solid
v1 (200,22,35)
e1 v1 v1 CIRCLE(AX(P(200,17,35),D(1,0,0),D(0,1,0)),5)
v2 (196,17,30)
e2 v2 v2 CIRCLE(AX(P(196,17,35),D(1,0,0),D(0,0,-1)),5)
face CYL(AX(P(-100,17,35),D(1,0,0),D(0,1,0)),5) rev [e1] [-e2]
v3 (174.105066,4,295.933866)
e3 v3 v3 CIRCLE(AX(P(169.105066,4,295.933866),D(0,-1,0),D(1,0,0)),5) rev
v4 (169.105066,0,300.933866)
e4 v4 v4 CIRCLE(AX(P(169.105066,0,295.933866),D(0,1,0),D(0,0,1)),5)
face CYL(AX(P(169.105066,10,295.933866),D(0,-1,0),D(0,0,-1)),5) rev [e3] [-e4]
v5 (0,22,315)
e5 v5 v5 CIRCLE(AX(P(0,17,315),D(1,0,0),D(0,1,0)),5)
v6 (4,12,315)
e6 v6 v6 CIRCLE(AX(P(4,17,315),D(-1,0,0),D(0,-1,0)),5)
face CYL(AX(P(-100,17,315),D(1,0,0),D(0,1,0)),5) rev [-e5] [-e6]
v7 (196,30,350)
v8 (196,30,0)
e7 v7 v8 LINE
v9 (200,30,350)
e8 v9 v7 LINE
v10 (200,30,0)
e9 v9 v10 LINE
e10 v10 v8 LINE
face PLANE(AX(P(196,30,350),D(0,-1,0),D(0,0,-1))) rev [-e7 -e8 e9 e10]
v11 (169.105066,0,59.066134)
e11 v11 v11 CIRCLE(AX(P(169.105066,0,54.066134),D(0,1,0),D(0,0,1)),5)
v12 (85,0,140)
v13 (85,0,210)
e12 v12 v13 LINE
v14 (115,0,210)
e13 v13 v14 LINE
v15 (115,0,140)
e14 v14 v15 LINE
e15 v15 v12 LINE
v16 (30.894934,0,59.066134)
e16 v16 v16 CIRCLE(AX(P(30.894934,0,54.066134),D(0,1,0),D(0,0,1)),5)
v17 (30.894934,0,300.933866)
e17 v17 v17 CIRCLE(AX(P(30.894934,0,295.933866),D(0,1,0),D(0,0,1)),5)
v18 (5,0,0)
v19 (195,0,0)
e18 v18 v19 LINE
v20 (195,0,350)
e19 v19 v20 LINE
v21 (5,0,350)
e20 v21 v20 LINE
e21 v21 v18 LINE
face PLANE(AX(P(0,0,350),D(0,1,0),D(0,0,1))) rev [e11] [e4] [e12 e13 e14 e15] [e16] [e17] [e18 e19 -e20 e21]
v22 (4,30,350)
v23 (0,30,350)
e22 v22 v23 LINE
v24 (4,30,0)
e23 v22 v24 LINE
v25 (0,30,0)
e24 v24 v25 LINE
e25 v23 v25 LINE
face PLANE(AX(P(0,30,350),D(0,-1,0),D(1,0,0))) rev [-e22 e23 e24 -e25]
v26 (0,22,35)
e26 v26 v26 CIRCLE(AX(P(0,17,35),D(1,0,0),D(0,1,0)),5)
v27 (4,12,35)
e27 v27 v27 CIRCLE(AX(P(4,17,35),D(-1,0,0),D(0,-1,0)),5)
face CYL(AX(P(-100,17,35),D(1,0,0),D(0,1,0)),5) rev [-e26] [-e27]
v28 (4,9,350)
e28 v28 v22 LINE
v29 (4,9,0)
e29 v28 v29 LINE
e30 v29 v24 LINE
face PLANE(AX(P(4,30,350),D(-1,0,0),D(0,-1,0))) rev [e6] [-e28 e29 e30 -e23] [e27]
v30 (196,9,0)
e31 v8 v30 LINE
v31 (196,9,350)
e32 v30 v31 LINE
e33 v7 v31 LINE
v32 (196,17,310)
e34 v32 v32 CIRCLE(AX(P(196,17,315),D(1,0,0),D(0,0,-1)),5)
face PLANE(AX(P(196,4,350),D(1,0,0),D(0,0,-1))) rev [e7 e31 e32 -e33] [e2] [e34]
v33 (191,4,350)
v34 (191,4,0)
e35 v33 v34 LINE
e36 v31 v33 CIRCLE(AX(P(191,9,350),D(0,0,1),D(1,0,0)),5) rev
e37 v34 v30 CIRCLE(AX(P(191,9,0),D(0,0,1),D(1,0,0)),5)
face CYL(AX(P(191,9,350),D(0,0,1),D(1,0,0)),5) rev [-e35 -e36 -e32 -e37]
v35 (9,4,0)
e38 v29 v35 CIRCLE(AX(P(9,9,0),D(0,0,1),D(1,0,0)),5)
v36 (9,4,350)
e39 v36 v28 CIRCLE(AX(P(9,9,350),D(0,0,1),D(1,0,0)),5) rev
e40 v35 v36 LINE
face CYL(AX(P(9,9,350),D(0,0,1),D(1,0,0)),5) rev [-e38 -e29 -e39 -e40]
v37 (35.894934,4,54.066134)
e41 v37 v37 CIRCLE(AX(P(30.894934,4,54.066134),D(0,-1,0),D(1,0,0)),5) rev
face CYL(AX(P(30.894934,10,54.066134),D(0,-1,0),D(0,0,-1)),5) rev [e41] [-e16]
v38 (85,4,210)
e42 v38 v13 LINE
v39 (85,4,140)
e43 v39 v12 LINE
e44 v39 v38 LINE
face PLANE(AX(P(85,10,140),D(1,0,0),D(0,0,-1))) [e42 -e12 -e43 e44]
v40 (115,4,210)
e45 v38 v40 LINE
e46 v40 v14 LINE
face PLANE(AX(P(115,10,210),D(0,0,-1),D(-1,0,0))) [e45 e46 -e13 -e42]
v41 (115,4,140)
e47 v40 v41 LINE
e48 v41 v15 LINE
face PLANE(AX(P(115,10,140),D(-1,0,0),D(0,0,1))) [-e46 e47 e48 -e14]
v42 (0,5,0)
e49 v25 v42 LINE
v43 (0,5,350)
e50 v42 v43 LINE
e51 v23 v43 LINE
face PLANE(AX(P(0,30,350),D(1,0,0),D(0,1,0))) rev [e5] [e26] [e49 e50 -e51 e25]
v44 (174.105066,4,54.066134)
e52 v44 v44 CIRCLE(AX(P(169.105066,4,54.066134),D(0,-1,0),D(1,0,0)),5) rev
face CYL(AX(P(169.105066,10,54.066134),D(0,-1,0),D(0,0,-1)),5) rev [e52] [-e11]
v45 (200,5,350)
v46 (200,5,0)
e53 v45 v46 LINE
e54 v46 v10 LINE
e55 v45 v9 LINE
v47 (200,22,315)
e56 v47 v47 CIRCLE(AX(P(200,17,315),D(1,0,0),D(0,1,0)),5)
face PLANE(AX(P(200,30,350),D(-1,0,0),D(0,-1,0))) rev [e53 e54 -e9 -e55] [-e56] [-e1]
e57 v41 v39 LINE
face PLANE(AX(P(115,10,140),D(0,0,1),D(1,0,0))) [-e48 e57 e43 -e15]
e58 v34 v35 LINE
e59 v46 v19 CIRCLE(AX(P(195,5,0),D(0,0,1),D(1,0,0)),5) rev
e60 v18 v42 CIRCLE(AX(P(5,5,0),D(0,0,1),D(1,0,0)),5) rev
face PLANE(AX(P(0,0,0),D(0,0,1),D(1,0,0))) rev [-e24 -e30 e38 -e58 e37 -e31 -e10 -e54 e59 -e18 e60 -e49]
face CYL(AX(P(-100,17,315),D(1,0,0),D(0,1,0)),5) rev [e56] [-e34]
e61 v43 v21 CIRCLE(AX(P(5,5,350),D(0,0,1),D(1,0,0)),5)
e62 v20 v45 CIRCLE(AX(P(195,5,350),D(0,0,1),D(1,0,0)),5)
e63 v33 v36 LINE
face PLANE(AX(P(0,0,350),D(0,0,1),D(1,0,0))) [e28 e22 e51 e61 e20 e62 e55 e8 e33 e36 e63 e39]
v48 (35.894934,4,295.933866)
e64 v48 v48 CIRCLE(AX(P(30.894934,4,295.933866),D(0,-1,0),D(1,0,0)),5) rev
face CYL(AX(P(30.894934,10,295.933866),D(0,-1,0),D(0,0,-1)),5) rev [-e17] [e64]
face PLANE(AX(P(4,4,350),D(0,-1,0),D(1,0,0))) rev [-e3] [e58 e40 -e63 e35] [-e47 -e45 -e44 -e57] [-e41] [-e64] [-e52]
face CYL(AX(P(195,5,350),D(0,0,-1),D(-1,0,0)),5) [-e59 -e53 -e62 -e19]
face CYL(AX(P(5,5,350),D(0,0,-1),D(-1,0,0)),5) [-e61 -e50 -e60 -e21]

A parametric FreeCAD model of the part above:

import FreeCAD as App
import Part
import Sketcher
Q = App.Units.Quantity


def edges_at(feature, points):
    """Names of the edges that pass closest to the given points."""
    edges = feature.Shape.Edges
    near = lambda p: min(range(len(edges)), key=lambda i: edges[i].distToShape(Part.Vertex(*p))[0])
    return sorted({f"Edge{near(p) + 1}" for p in points})


def add_polygon(sketch, points):
    """Adds a closed chain of lines whose ends are joined by coincident constraints."""
    first, n = sketch.GeometryCount, len(points)
    for a, b in zip(points, points[1:] + points[:1]):
        sketch.addGeometry(Part.LineSegment(App.Vector(*a, 0), App.Vector(*b, 0)), False)
    for i in range(n):
        sketch.addConstraint(Sketcher.Constraint("Coincident", first + i, 2, first + (i + 1) % n, 1))

doc = App.newDocument("Part")
body = doc.addObject("PartDesign::Body", "Body")

# Sketch on XY plane
sketch1 = body.newObject("Sketcher::SketchObject", "Sketch")
sketch1.AttachmentSupport = (doc.getObject("XY_Plane"), [""])
sketch1.MapMode = "FlatFace"
add_polygon(sketch1, [(0, 0), (200, 0), (200, 30), (196, 30), (196, 4), (4, 4), (4, 30), (0, 30)])  # lines 0-7
sketch1.addConstraint(Sketcher.Constraint("Horizontal", 0))
sketch1.addConstraint(Sketcher.Constraint("Vertical", 1))
sketch1.addConstraint(Sketcher.Constraint("Horizontal", 2))
sketch1.addConstraint(Sketcher.Constraint("Vertical", 3))
sketch1.addConstraint(Sketcher.Constraint("Horizontal", 4))
sketch1.addConstraint(Sketcher.Constraint("Vertical", 5))
sketch1.addConstraint(Sketcher.Constraint("Horizontal", 6))
sketch1.addConstraint(Sketcher.Constraint("Vertical", 7))
sketch1.addConstraint(Sketcher.Constraint("Coincident", 7, 2, -1, 1))
sketch1.addConstraint(Sketcher.Constraint("Horizontal", 2, 2, 5, 2))
sketch1.addConstraint(Sketcher.Constraint("Equal", 2, 6))
sketch1.addConstraint(Sketcher.Constraint("DistanceX", 0, 1, 0, 2, Q("200 mm")))
sketch1.addConstraint(Sketcher.Constraint("DistanceX", 2, 2, 2, 1, Q("4 mm")))
sketch1.addConstraint(Sketcher.Constraint("DistanceY", 1, 1, 1, 2, Q("30 mm")))
sketch1.addConstraint(Sketcher.Constraint("DistanceY", 3, 2, 3, 1, Q("26 mm")))
pad1 = body.newObject("PartDesign::Pad", "Pad")
pad1.Profile = sketch1
pad1.Length = 350
doc.recompute()

fillet = body.newObject("PartDesign::Fillet", "Fillet")
fillet.Base = (pad1, edges_at(pad1, [
    (4, 4, 175),
    (196, 4, 175),
    (200, 0, 175),
    (0, 0, 175),
]))
fillet.Radius = 5

# Sketch on YZ plane
sketch2 = body.newObject("Sketcher::SketchObject", "Sketch001")
sketch2.AttachmentSupport = (doc.getObject("YZ_Plane"), [""])
sketch2.MapMode = "FlatFace"
sketch2.AttachmentOffset = App.Placement(App.Vector(0, 0, 200), App.Rotation())
sketch2.addGeometry(Part.Circle(App.Vector(17, 315, 0), App.Vector(0, 0, 1), 5), False)
sketch2.addGeometry(Part.Circle(App.Vector(17, 35, 0), App.Vector(0, 0, 1), 5), False)
sketch2.addConstraint(Sketcher.Constraint("Equal", 0, 1))
sketch2.addConstraint(Sketcher.Constraint("Vertical", 0, 3, 1, 3))
sketch2.addConstraint(Sketcher.Constraint("Diameter", 0, Q("10 mm")))
sketch2.addConstraint(Sketcher.Constraint("DistanceX", -1, 1, 0, 3, Q("17 mm")))
sketch2.addConstraint(Sketcher.Constraint("DistanceY", -1, 1, 0, 3, Q("315 mm")))
sketch2.addConstraint(Sketcher.Constraint("DistanceY", -1, 1, 1, 3, Q("35 mm")))
pocket1 = body.newObject("PartDesign::Pocket", "Pocket")
pocket1.Profile = sketch2
pocket1.Length = 300

# Sketch on XZ plane
sketch3 = body.newObject("Sketcher::SketchObject", "Sketch002")
sketch3.AttachmentSupport = (doc.getObject("XZ_Plane"), [""])
sketch3.MapMode = "FlatFace"
sketch3.addGeometry(Part.Circle(App.Vector(31, 54, 0), App.Vector(0, 0, 1), 5), False)  # 0
sketch3.addGeometry(Part.Circle(App.Vector(169, 54, 0), App.Vector(0, 0, 1), 5), False)  # 1
sketch3.addGeometry(Part.Circle(App.Vector(169, 296, 0), App.Vector(0, 0, 1), 5), False)  # 2
sketch3.addGeometry(Part.Circle(App.Vector(31, 296, 0), App.Vector(0, 0, 1), 5), False)  # 3
add_polygon(sketch3, [(85, 140), (85, 210), (115, 210), (115, 140)])  # lines 4-7
sketch3.addConstraint(Sketcher.Constraint("Vertical", 4))
sketch3.addConstraint(Sketcher.Constraint("Horizontal", 5))
sketch3.addConstraint(Sketcher.Constraint("Vertical", 6))
sketch3.addConstraint(Sketcher.Constraint("Horizontal", 7))
sketch3.addConstraint(Sketcher.Constraint("Equal", 0, 1))
sketch3.addConstraint(Sketcher.Constraint("Equal", 1, 2))
sketch3.addConstraint(Sketcher.Constraint("Equal", 2, 3))
sketch3.addConstraint(Sketcher.Constraint("Horizontal", 0, 3, 1, 3))
sketch3.addConstraint(Sketcher.Constraint("Horizontal", 2, 3, 3, 3))
sketch3.addConstraint(Sketcher.Constraint("Vertical", 1, 3, 2, 3))
sketch3.addConstraint(Sketcher.Constraint("Vertical", 0, 3, 3, 3))
sketch3.addConstraint(Sketcher.Constraint("Diameter", 0, Q("10 mm")))
sketch3.addConstraint(Sketcher.Constraint("DistanceX", 5, 1, 5, 2, Q("30 mm")))
sketch3.addConstraint(Sketcher.Constraint("DistanceY", 4, 1, 4, 2, Q("70 mm")))
sketch3.addConstraint(Sketcher.Constraint("DistanceX", -1, 1, 4, 2, Q("85 mm")))
sketch3.addConstraint(Sketcher.Constraint("DistanceY", -1, 1, 4, 2, Q("210 mm")))
sketch3.addConstraint(Sketcher.Constraint("DistanceX", -1, 1, 0, 3, Q("30.894934 mm")))
sketch3.addConstraint(Sketcher.Constraint("DistanceY", -1, 1, 0, 3, Q("54.066134 mm")))
sketch3.addConstraint(Sketcher.Constraint("DistanceX", -1, 1, 1, 3, Q("169.105066 mm")))
sketch3.addConstraint(Sketcher.Constraint("DistanceY", -1, 1, 2, 3, Q("295.933866 mm")))
pocket2 = body.newObject("PartDesign::Pocket", "Pocket001")
pocket2.Profile = sketch3
pocket2.Length = 10

doc.recompute()
